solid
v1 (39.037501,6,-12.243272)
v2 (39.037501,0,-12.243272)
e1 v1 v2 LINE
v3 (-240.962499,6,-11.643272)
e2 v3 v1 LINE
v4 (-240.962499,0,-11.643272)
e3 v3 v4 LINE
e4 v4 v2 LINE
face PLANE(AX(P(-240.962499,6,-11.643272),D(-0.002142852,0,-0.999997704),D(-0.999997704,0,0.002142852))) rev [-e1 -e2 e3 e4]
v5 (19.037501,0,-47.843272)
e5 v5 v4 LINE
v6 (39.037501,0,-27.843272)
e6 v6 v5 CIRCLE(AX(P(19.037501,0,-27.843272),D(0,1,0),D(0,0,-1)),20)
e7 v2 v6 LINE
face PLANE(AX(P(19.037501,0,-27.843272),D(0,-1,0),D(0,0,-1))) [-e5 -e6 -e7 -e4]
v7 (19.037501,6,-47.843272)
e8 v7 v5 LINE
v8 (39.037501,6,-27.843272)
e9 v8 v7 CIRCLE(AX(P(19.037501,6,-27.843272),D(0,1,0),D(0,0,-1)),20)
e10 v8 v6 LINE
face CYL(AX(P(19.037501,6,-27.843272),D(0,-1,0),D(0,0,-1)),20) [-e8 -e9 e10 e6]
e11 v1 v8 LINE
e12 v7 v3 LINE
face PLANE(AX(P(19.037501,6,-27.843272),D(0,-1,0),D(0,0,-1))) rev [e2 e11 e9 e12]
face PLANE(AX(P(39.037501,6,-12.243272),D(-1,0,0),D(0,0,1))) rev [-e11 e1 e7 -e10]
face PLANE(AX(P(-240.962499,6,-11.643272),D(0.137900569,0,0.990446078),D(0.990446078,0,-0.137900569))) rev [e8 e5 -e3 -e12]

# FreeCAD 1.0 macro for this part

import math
import FreeCAD as App
import Part
import Sketcher

doc = App.newDocument("Part")
params = doc.addObject("Spreadsheet::Sheet", "Params")
for row, (alias, value) in enumerate([
    ("sketch1_radius", "20 mm"),
    ("sketch1_height", "15.6 mm"),
    ("pad1_length", "6 mm"),
], start=1):
    params.set(f"A{row}", alias)
    params.set(f"B{row}", "=" + value)
    params.setAlias(f"B{row}", alias)

body = doc.addObject("PartDesign::Body", "Body")

sketch1 = body.newObject("Sketcher::SketchObject", "Sketch")
sketch1.AttachmentSupport = (doc.getObject("XZ_Plane"), [""])
sketch1.MapMode = "FlatFace"
sketch1.addGeometry([
    Part.LineSegment(App.Vector(39.037501, -12.243272, 0), App.Vector(39.037501, -27.843272, 0)),
    Part.ArcOfCircle(Part.Circle(App.Vector(19.037501, -27.843272, 0), App.Vector(0, 0, 1), 20), math.radians(-90), math.radians(0)),
    Part.LineSegment(App.Vector(19.037501, -47.843272, 0), App.Vector(-240.962499, -11.643272, 0)),
    Part.LineSegment(App.Vector(-240.962499, -11.643272, 0), App.Vector(39.037501, -12.243272, 0)),
], False)
sketch1.addConstraint([
    Sketcher.Constraint("Tangent", 0, 2, 1, 2),
    Sketcher.Constraint("Coincident", 1, 1, 2, 1),
    Sketcher.Constraint("Coincident", 2, 2, 3, 1),
    Sketcher.Constraint("Coincident", 3, 2, 0, 1),
    Sketcher.Constraint("Vertical", 0),
    Sketcher.Constraint("Radius", 1, 20.0),
    Sketcher.Constraint("DistanceY", 0, 2, 0, 1, 15.6),
    Sketcher.Constraint("DistanceX", 1, 1, 0, 2, 20.0),
    Sketcher.Constraint("DistanceX", 2, 2, 1, 3, 260.0),
    Sketcher.Constraint("DistanceY", 1, 3, 2, 2, 16.2),
    Sketcher.Constraint("DistanceX", -1, 1, 1, 3, 19.037501),
    Sketcher.Constraint("DistanceY", 1, 3, -1, 1, 27.843272),
])
sketch1.setExpression("Constraints[5]", "Params.sketch1_radius")
sketch1.setExpression("Constraints[6]", "Params.sketch1_height")
pad1 = body.newObject("PartDesign::Pad", "Pad")
pad1.Profile = sketch1
pad1.setExpression("Length", "Params.pad1_length")
pad1.Reversed = True

doc.recompute()
